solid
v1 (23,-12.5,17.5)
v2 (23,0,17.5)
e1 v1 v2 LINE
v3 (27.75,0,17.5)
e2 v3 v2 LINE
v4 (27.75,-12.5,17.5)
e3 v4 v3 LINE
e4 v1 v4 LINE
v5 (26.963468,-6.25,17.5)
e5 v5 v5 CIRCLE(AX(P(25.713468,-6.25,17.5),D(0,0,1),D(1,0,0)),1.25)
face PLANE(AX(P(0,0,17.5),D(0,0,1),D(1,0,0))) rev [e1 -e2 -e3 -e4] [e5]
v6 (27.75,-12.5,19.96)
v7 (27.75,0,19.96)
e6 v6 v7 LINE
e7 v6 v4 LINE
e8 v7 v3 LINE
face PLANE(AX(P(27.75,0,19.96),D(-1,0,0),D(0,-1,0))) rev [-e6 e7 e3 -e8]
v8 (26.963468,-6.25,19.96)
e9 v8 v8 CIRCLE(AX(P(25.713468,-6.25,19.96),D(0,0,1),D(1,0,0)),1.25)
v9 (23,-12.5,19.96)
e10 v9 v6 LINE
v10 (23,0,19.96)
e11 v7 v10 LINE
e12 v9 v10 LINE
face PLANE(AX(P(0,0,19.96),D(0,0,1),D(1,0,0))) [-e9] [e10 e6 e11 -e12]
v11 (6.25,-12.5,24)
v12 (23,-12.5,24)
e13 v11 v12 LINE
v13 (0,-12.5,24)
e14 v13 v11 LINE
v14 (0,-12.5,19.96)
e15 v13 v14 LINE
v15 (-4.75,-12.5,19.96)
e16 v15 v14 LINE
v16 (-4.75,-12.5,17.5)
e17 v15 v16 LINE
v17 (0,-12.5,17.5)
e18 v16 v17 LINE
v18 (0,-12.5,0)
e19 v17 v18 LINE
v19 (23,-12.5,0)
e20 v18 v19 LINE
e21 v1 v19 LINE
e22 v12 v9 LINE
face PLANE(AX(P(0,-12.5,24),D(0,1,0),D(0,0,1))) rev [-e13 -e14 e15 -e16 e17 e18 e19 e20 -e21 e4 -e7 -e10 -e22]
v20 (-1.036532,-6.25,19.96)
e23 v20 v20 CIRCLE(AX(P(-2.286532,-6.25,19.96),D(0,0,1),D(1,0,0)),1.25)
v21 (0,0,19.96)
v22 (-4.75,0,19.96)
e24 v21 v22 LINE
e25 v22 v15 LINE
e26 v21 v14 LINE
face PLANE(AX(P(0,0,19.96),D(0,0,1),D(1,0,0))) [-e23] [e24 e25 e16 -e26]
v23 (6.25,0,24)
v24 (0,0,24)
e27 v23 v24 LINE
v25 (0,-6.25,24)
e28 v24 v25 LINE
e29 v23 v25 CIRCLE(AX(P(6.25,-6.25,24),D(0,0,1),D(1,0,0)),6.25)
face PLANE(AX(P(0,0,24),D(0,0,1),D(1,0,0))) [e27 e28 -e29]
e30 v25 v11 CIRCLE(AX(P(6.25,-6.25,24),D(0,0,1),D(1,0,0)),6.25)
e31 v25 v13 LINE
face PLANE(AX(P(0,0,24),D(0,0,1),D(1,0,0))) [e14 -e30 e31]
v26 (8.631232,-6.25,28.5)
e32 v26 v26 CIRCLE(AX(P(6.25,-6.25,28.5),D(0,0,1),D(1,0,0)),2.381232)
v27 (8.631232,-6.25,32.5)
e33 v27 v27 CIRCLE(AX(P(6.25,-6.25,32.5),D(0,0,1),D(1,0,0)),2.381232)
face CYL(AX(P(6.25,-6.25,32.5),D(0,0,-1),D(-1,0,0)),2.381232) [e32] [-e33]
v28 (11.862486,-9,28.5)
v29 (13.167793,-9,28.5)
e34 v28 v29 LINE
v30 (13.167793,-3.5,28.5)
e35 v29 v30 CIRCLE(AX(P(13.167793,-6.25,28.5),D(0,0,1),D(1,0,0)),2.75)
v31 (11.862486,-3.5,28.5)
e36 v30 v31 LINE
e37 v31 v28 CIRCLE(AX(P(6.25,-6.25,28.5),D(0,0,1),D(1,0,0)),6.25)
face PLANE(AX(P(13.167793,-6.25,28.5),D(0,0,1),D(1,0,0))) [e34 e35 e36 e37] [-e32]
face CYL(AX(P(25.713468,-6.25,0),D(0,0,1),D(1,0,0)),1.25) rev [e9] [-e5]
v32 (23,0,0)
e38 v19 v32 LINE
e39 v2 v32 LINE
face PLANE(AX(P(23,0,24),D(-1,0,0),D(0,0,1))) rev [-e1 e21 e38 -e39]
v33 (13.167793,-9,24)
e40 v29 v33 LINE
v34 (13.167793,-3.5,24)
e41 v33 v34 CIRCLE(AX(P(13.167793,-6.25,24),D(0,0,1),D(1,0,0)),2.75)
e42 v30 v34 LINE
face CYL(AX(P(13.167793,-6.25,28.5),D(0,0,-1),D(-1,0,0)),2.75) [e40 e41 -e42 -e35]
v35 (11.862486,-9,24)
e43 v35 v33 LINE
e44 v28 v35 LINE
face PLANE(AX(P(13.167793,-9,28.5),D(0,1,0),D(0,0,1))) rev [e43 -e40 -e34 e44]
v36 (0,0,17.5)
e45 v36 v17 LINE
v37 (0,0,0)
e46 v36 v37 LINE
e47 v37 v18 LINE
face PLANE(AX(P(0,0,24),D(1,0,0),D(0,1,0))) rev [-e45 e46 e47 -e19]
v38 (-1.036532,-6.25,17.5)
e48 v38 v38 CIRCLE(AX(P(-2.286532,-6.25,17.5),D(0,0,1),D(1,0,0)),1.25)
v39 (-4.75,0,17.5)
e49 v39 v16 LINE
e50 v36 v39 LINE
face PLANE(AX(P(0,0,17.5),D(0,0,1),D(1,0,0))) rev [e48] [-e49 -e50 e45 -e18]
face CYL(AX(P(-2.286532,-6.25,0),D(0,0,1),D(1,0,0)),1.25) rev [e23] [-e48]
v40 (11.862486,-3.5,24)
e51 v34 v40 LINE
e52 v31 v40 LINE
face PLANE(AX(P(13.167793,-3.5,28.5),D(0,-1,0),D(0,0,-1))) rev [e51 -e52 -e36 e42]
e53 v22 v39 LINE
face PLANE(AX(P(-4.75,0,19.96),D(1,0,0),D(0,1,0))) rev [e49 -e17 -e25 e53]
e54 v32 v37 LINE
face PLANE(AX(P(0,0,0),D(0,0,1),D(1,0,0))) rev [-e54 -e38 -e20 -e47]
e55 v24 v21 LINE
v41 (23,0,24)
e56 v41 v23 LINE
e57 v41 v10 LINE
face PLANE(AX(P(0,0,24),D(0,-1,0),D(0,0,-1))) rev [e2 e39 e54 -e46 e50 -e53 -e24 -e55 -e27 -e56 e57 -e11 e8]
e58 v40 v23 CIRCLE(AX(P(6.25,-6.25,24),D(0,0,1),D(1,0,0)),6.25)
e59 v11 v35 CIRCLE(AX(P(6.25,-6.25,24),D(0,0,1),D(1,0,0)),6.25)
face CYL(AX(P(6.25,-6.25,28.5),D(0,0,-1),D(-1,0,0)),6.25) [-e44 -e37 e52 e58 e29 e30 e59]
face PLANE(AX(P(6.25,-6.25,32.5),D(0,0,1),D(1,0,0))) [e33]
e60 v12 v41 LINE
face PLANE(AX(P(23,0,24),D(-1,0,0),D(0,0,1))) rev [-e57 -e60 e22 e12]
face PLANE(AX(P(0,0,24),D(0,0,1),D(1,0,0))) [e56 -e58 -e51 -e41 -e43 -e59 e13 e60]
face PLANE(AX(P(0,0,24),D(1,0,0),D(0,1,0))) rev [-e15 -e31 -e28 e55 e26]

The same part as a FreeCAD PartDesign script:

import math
import FreeCAD as App
import Part
import Sketcher

V = App.Vector


def add_polygon(sketch, points):
    """Adds a closed chain of lines whose ends are joined by coincident constraints."""
    first, n = sketch.GeometryCount, len(points)
    for a, b in zip(points, points[1:] + points[:1]):
        sketch.addGeometry(Part.LineSegment(App.Vector(*a, 0), App.Vector(*b, 0)), False)
    for i in range(n):
        sketch.addConstraint(Sketcher.Constraint("Coincident", first + i, 2, first + (i + 1) % n, 1))

doc = App.newDocument("Part")
body = doc.addObject("PartDesign::Body", "Body")

# Sketch on XY plane
sketch1 = doc.addObject("Sketcher::SketchObject", "Sketch")
body.addObject(sketch1)
sketch1.AttachmentSupport = (doc.XY_Plane, [""])
sketch1.MapMode = "FlatFace"
add_polygon(sketch1, [(0, 0), (0, -12.5), (23, -12.5), (23, 0)])  # lines 0-3
sketch1.addConstraint([
    Sketcher.Constraint("Vertical", 0),
    Sketcher.Constraint("Horizontal", 1),
    Sketcher.Constraint("Vertical", 2),
    Sketcher.Constraint("Horizontal", 3),
    Sketcher.Constraint("Coincident", 3, 2, -1, 1),
    Sketcher.Constraint("DistanceX", 1, 1, 1, 2, 23.0),
    Sketcher.Constraint("DistanceY", 0, 2, 0, 1, 12.5),
])
pad1 = doc.addObject("PartDesign::Pad", "Pad")
body.addObject(pad1)
pad1.Profile = sketch1
pad1.Length = 24

# Sketch on XY plane
sketch2 = doc.addObject("Sketcher::SketchObject", "Sketch001")
body.addObject(sketch2)
sketch2.AttachmentSupport = (doc.XY_Plane, [""])
sketch2.MapMode = "FlatFace"
sketch2.AttachmentOffset = App.Placement(V(0, 0, 17.5), App.Rotation())
add_polygon(sketch2, [(-4.75, 0), (-4.75, -12.5), (27.75, -12.5), (27.75, 0)])  # lines 0-3
sketch2.addConstraint([
    Sketcher.Constraint("Vertical", 0),
    Sketcher.Constraint("Horizontal", 1),
    Sketcher.Constraint("Vertical", 2),
    Sketcher.Constraint("Horizontal", 3),
    Sketcher.Constraint("PointOnObject", 2, 2, -1),
    Sketcher.Constraint("DistanceX", 1, 1, 1, 2, 32.5),
    Sketcher.Constraint("DistanceY", 0, 2, 0, 1, 12.5),
    Sketcher.Constraint("DistanceX", 0, 2, -1, 1, 4.75),
])
pad2 = doc.addObject("PartDesign::Pad", "Pad001")
body.addObject(pad2)
pad2.Profile = sketch2
pad2.Length = 2.46

# Sketch on XY plane
sketch3 = doc.addObject("Sketcher::SketchObject", "Sketch002")
body.addObject(sketch3)
sketch3.AttachmentSupport = (doc.XY_Plane, [""])
sketch3.MapMode = "FlatFace"
sketch3.AttachmentOffset = App.Placement(V(0, 0, 24), App.Rotation())
sketch3.addGeometry([
    Part.LineSegment(V(13.167793, -3.5, 0), V(11.862486, -3.5, 0)),
    Part.ArcOfCircle(Part.Circle(V(6.25, -6.25, 0), V(0, 0, 1), 6.25), math.radians(26.103881), math.radians(333.896119)),
    Part.LineSegment(V(11.862486, -9, 0), V(13.167793, -9, 0)),
    Part.ArcOfCircle(Part.Circle(V(13.167793, -6.25, 0), V(0, 0, 1), 2.75), math.radians(-90), math.radians(90)),
], False)
sketch3.addConstraint([
    Sketcher.Constraint("Coincident", 0, 2, 1, 1),
    Sketcher.Constraint("Coincident", 1, 2, 2, 1),
    Sketcher.Constraint("Tangent", 2, 2, 3, 1),
    Sketcher.Constraint("Tangent", 3, 2, 0, 1),
    Sketcher.Constraint("Horizontal", 0),
    Sketcher.Constraint("Horizontal", 2),
    Sketcher.Constraint("Horizontal", 1, 3, 3, 3),
    Sketcher.Constraint("Radius", 1, 6.25),
    Sketcher.Constraint("Radius", 3, 2.75),
    Sketcher.Constraint("DistanceY", 1, 2, -1, 1, 9.0),
    Sketcher.Constraint("DistanceX", -1, 1, 1, 3, 6.25),
    Sketcher.Constraint("DistanceX", 0, 2, 0, 1, 1.305307),
])
pad3 = doc.addObject("PartDesign::Pad", "Pad002")
body.addObject(pad3)
pad3.Profile = sketch3
pad3.Length = 4.5

# Sketch on XY plane
sketch4 = doc.addObject("Sketcher::SketchObject", "Sketch003")
body.addObject(sketch4)
sketch4.AttachmentSupport = (doc.XY_Plane, [""])
sketch4.MapMode = "FlatFace"
sketch4.AttachmentOffset = App.Placement(V(0, 0, 28.5), App.Rotation())
sketch4.addGeometry(Part.Circle(V(6.25, -6.25, 0), V(0, 0, 1), 2.381232), False)
sketch4.addConstraint([
    Sketcher.Constraint("DistanceX", -1, 1, 0, 3, 6.25),
    Sketcher.Constraint("DistanceY", 0, 3, -1, 1, 6.25),
    Sketcher.Constraint("Diameter", 0, 4.762464),
])
pad4 = doc.addObject("PartDesign::Pad", "Pad003")
body.addObject(pad4)
pad4.Profile = sketch4
pad4.Length = 4

# Sketch on XY plane
sketch5 = doc.addObject("Sketcher::SketchObject", "Sketch004")
body.addObject(sketch5)
sketch5.AttachmentSupport = (doc.XY_Plane, [""])
sketch5.MapMode = "FlatFace"
sketch5.AttachmentOffset = App.Placement(V(0, 0, 19.96), App.Rotation())
sketch5.addGeometry([
    Part.Circle(V(-2.286532, -6.25, 0), V(0, 0, 1), 1.25),
    Part.Circle(V(25.713468, -6.25, 0), V(0, 0, 1), 1.25),
], False)
sketch5.addConstraint([
    Sketcher.Constraint("Equal", 0, 1),
    Sketcher.Constraint("Horizontal", 0, 3, 1, 3),
    Sketcher.Constraint("Diameter", 0, 2.5),
    Sketcher.Constraint("DistanceX", 0, 3, 1, 3, 28.0),
    Sketcher.Constraint("DistanceY", 0, 3, -1, 1, 6.25),
    Sketcher.Constraint("DistanceX", 0, 3, -1, 1, 2.286532),
])
pocket1 = doc.addObject("PartDesign::Pocket", "Pocket")
body.addObject(pocket1)
pocket1.Profile = sketch5
pocket1.Type = "ThroughAll"

doc.recompute()
